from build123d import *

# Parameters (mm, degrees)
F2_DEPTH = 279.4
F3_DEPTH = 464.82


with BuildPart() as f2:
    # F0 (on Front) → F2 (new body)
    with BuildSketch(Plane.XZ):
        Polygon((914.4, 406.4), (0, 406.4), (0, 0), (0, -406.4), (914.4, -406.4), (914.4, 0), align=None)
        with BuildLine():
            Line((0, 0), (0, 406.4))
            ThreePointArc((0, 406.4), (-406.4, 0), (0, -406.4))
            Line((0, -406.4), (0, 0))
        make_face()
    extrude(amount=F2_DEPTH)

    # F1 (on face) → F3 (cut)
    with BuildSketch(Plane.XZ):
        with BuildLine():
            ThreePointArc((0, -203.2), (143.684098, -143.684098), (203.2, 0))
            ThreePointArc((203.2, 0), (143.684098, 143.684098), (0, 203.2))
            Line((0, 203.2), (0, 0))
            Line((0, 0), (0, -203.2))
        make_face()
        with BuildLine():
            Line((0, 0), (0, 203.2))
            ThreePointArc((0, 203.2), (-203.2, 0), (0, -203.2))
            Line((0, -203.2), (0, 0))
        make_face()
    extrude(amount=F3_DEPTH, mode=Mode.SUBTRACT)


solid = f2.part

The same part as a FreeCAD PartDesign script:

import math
import FreeCAD as App
import Part
import Sketcher
Q = App.Units.Quantity

doc = App.newDocument("Part")
params = doc.addObject("Spreadsheet::Sheet", "Params")
for row, (alias, value) in enumerate([
    ("sketch1_radius", "16 in"),
    ("sketch1_width", "36 in"),
    ("pad1_length", "11 in"),
    ("sketch2_radius", "8 in"),
    ("pocket1_length", "18.3 in"),
], start=1):
    params.set(f"A{row}", alias)
    params.set(f"B{row}", "=" + value)
    params.setAlias(f"B{row}", alias)

body = doc.addObject("PartDesign::Body", "Body")

# Sketch on XZ plane
sketch1 = doc.addObject("Sketcher::SketchObject", "Sketch")
body.addObject(sketch1)
sketch1.AttachmentSupport = (doc.XZ_Plane, [""])
sketch1.MapMode = "FlatFace"
sketch1.addGeometry([
    Part.LineSegment(App.Vector(914, 406, 0), App.Vector(0, 406, 0)),
    Part.ArcOfCircle(Part.Circle(App.Vector(0, 0, 0), App.Vector(0, 0, 1), 406), math.radians(90), math.radians(270)),
    Part.LineSegment(App.Vector(0, -406, 0), App.Vector(914, -406, 0)),
    Part.LineSegment(App.Vector(914, -406, 0), App.Vector(914, 406, 0)),
], False)
sketch1.addConstraint([
    Sketcher.Constraint("Tangent", 0, 2, 1, 1),
    Sketcher.Constraint("Tangent", 1, 2, 2, 1),
    Sketcher.Constraint("Coincident", 2, 2, 3, 1),
    Sketcher.Constraint("Coincident", 3, 2, 0, 1),
    Sketcher.Constraint("Horizontal", 0),
    Sketcher.Constraint("Horizontal", 2),
    Sketcher.Constraint("Vertical", 3),
    Sketcher.Constraint("Coincident", 1, 3, -1, 1),
    Sketcher.Constraint("Radius", 1, Q("16 in")),
    Sketcher.Constraint("DistanceX", 0, 2, 0, 1, Q("36 in")),
])
sketch1.setExpression("Constraints[8]", "Params.sketch1_radius")
sketch1.setExpression("Constraints[9]", "Params.sketch1_width")
pad1 = doc.addObject("PartDesign::Pad", "Pad")
body.addObject(pad1)
pad1.Profile = sketch1
pad1.setExpression("Length", "Params.pad1_length")

# Sketch on XZ plane
sketch2 = doc.addObject("Sketcher::SketchObject", "Sketch001")
body.addObject(sketch2)
sketch2.AttachmentSupport = (doc.XZ_Plane, [""])
sketch2.MapMode = "FlatFace"
sketch2.addGeometry([
    Part.ArcOfCircle(Part.Circle(App.Vector(0, 0, 0), App.Vector(0, 0, 1), 203), math.radians(-90), math.radians(0)),
    Part.ArcOfCircle(Part.Circle(App.Vector(0, 0, 0), App.Vector(0, 0, 1), 203), math.radians(0), math.radians(90)),
    Part.ArcOfCircle(Part.Circle(App.Vector(0, 0, 0), App.Vector(0, 0, 1), 203), math.radians(90), math.radians(270)),
], False)
sketch2.addConstraint([
    Sketcher.Constraint("Tangent", 0, 2, 1, 1),
    Sketcher.Constraint("Tangent", 1, 2, 2, 1),
    Sketcher.Constraint("Tangent", 2, 2, 0, 1),
    Sketcher.Constraint("Coincident", 0, 3, -1, 1),
    Sketcher.Constraint("PointOnObject", 0, 2, -1),
    Sketcher.Constraint("PointOnObject", 1, 2, -2),
    Sketcher.Constraint("PointOnObject", 2, 2, -2),
    Sketcher.Constraint("Radius", 0, Q("8 in")),
])
sketch2.setExpression("Constraints[7]", "Params.sketch2_radius")
pocket1 = doc.addObject("PartDesign::Pocket", "Pocket")
body.addObject(pocket1)
pocket1.Profile = sketch2
pocket1.setExpression("Length", "Params.pocket1_length")
pocket1.Reversed = True

doc.recompute()
